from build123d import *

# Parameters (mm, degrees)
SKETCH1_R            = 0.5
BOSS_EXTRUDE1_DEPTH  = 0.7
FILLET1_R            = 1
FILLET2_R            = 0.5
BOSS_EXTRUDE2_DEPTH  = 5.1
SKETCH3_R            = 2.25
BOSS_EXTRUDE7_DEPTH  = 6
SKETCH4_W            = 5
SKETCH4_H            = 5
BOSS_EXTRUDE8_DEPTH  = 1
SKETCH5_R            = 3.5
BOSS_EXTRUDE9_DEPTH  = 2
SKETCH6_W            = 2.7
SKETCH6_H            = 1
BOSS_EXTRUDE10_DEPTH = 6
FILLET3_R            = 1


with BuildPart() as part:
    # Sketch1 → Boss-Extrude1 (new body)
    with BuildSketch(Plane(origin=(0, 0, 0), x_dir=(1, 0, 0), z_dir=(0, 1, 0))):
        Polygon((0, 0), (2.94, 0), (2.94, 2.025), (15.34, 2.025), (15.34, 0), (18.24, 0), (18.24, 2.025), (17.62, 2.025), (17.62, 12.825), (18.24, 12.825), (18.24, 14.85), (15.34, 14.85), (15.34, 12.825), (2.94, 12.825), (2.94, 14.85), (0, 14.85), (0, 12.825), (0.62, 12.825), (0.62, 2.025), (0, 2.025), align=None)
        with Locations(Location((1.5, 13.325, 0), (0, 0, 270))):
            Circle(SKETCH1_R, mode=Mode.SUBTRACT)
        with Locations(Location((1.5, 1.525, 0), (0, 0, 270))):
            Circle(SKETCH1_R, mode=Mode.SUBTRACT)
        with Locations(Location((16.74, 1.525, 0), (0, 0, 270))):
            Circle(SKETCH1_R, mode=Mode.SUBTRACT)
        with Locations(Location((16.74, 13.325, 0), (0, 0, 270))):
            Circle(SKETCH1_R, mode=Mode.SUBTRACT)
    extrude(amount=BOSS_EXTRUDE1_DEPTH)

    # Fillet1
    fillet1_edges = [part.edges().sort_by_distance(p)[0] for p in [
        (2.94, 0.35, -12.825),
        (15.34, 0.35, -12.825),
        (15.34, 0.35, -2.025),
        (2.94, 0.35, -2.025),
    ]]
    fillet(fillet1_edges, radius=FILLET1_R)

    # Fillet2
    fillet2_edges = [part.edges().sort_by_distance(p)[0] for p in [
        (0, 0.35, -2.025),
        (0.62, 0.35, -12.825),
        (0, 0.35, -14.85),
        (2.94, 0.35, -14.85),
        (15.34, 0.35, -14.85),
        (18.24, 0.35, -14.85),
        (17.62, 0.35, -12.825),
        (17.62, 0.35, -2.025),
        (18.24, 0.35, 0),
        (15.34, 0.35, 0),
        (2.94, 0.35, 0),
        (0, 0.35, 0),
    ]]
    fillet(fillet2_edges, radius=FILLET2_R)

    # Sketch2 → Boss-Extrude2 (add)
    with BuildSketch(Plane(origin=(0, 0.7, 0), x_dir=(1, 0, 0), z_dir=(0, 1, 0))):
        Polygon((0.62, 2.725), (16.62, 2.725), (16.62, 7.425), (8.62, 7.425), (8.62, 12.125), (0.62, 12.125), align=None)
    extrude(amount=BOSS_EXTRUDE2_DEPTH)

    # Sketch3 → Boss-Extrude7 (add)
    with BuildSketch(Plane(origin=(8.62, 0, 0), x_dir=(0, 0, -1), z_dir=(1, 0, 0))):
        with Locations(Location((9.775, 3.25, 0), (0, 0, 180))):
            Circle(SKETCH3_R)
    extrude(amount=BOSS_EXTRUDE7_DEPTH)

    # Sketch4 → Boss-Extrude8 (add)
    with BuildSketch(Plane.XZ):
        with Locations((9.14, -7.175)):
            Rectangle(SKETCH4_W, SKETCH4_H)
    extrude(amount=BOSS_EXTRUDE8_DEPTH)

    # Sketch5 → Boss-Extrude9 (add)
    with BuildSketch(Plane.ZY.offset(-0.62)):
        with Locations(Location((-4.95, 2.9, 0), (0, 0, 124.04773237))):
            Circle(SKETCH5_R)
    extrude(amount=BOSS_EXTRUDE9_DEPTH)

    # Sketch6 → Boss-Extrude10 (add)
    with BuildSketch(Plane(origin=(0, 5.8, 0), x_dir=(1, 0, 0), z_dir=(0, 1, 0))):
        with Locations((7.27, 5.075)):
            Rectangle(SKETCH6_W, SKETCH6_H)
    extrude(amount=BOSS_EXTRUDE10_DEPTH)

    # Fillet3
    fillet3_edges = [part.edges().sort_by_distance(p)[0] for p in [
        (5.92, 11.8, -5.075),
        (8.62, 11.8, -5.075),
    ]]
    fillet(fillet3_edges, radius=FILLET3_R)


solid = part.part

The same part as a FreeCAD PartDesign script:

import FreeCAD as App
import Part
import Sketcher

V = App.Vector


def edges_at(feature, points):
    """Names of the edges that pass closest to the given points."""
    edges = feature.Shape.Edges
    near = lambda p: min(range(len(edges)), key=lambda i: edges[i].distToShape(Part.Vertex(*p))[0])
    return sorted({f"Edge{near(p) + 1}" for p in points})

doc = App.newDocument("Part")
params = doc.addObject("Spreadsheet::Sheet", "Params")
for row, (alias, value) in enumerate([
    ("sketch1_diameter", "1 mm"),
    ("sketch1_width", "12.4 mm"),
    ("sketch1_width2", "2.9 mm"),
    ("sketch1_height", "10.8 mm"),
    ("sketch1_width3", "2.94 mm"),
    ("pad1_length", "0.7 mm"),
    ("fillet_radius", "1 mm"),
    ("fillet2_radius", "0.5 mm"),
    ("sketch2_width", "16 mm"),
    ("sketch2_height", "4.7 mm"),
    ("pad2_length", "5.1 mm"),
    ("sketch3_diameter", "4.5 mm"),
    ("pad3_length", "6 mm"),
    ("sketch4_width", "5 mm"),
    ("pad4_length", "1 mm"),
    ("sketch5_diameter", "7 mm"),
    ("pad5_length", "2 mm"),
    ("sketch6_height", "1 mm"),
    ("sketch6_width", "2.7 mm"),
    ("pad6_length", "6 mm"),
    ("fillet3_radius", "1 mm"),
], start=1):
    params.set(f"A{row}", alias)
    params.set(f"B{row}", "=" + value)
    params.setAlias(f"B{row}", alias)

body = doc.addObject("PartDesign::Body", "Body")

# Sketch on XZ plane
sketch1 = body.newObject("Sketcher::SketchObject", "Sketch")
sketch1.AttachmentSupport = (doc.getObject("XZ_Plane"), [""])
sketch1.MapMode = "FlatFace"
sketch1.addGeometry([
    Part.LineSegment(V(0, 0, 0), V(2.9, 0, 0)),  # 0
    Part.LineSegment(V(2.9, 0, 0), V(2.9, -2, 0)),  # 1
    Part.LineSegment(V(2.9, -2, 0), V(15.3, -2, 0)),  # 2
    Part.LineSegment(V(15.3, -2, 0), V(15.3, 0, 0)),  # 3
    Part.LineSegment(V(15.3, 0, 0), V(18.2, 0, 0)),  # 4
    Part.LineSegment(V(18.2, 0, 0), V(18.2, -2, 0)),  # 5
    Part.LineSegment(V(18.2, -2, 0), V(17.6, -2, 0)),  # 6
    Part.LineSegment(V(17.6, -2, 0), V(17.6, -12.8, 0)),  # 7
    Part.LineSegment(V(17.6, -12.8, 0), V(18.2, -12.8, 0)),  # 8
    Part.LineSegment(V(18.2, -12.8, 0), V(18.2, -14.8, 0)),  # 9
    Part.LineSegment(V(18.2, -14.8, 0), V(15.3, -14.8, 0)),  # 10
    Part.LineSegment(V(15.3, -14.8, 0), V(15.3, -12.8, 0)),  # 11
    Part.LineSegment(V(15.3, -12.8, 0), V(2.9, -12.8, 0)),  # 12
    Part.LineSegment(V(2.9, -12.8, 0), V(2.9, -14.8, 0)),  # 13
    Part.LineSegment(V(2.9, -14.8, 0), V(0, -14.8, 0)),  # 14
    Part.LineSegment(V(0, -14.8, 0), V(0, -12.8, 0)),  # 15
    Part.LineSegment(V(0, -12.8, 0), V(0.6, -12.8, 0)),  # 16
    Part.LineSegment(V(0.6, -12.8, 0), V(0.6, -2, 0)),  # 17
    Part.LineSegment(V(0.6, -2, 0), V(0, -2, 0)),  # 18
    Part.LineSegment(V(0, -2, 0), V(0, 0, 0)),  # 19
    Part.Circle(V(1.5, -1.5, 0), V(0, 0, 1), 0.5),  # 20
    Part.Circle(V(16.7, -1.5, 0), V(0, 0, 1), 0.5),  # 21
    Part.Circle(V(1.5, -13.3, 0), V(0, 0, 1), 0.5),  # 22
    Part.Circle(V(16.7, -13.3, 0), V(0, 0, 1), 0.5),  # 23
], False)
sketch1.addConstraint([
    Sketcher.Constraint("Coincident", 0, 2, 1, 1),
    Sketcher.Constraint("Coincident", 1, 2, 2, 1),
    Sketcher.Constraint("Coincident", 2, 2, 3, 1),
    Sketcher.Constraint("Coincident", 3, 2, 4, 1),
    Sketcher.Constraint("Coincident", 4, 2, 5, 1),
    Sketcher.Constraint("Coincident", 5, 2, 6, 1),
    Sketcher.Constraint("Coincident", 6, 2, 7, 1),
    Sketcher.Constraint("Coincident", 7, 2, 8, 1),
    Sketcher.Constraint("Coincident", 8, 2, 9, 1),
    Sketcher.Constraint("Coincident", 9, 2, 10, 1),
    Sketcher.Constraint("Coincident", 10, 2, 11, 1),
    Sketcher.Constraint("Coincident", 11, 2, 12, 1),
    Sketcher.Constraint("Coincident", 12, 2, 13, 1),
    Sketcher.Constraint("Coincident", 13, 2, 14, 1),
    Sketcher.Constraint("Coincident", 14, 2, 15, 1),
    Sketcher.Constraint("Coincident", 15, 2, 16, 1),
    Sketcher.Constraint("Coincident", 16, 2, 17, 1),
    Sketcher.Constraint("Coincident", 17, 2, 18, 1),
    Sketcher.Constraint("Coincident", 18, 2, 19, 1),
    Sketcher.Constraint("Coincident", 19, 2, 0, 1),
    Sketcher.Constraint("Horizontal", 0),
    Sketcher.Constraint("Vertical", 1),
    Sketcher.Constraint("Horizontal", 2),
    Sketcher.Constraint("Vertical", 3),
    Sketcher.Constraint("Horizontal", 4),
    Sketcher.Constraint("Vertical", 5),
    Sketcher.Constraint("Horizontal", 6),
    Sketcher.Constraint("Vertical", 7),
    Sketcher.Constraint("Horizontal", 8),
    Sketcher.Constraint("Vertical", 9),
    Sketcher.Constraint("Horizontal", 10),
    Sketcher.Constraint("Vertical", 11),
    Sketcher.Constraint("Horizontal", 12),
    Sketcher.Constraint("Vertical", 13),
    Sketcher.Constraint("Horizontal", 14),
    Sketcher.Constraint("Vertical", 15),
    Sketcher.Constraint("Horizontal", 16),
    Sketcher.Constraint("Vertical", 17),
    Sketcher.Constraint("Horizontal", 18),
    Sketcher.Constraint("Vertical", 19),
    Sketcher.Constraint("Coincident", 19, 2, -1, 1),
    Sketcher.Constraint("Equal", 20, 21),
    Sketcher.Constraint("Equal", 21, 22),
    Sketcher.Constraint("Equal", 22, 23),
    Sketcher.Constraint("PointOnObject", 3, 2, -1),
    Sketcher.Constraint("PointOnObject", 14, 2, -2),
    Sketcher.Constraint("Horizontal", 20, 3, 21, 3),
    Sketcher.Constraint("Horizontal", 22, 3, 23, 3),
    Sketcher.Constraint("Horizontal", 2, 2, 5, 2),
    Sketcher.Constraint("Horizontal", 8, 2, 11, 2),
    Sketcher.Constraint("Horizontal", 10, 2, 13, 2),
    Sketcher.Constraint("Horizontal", 12, 2, 15, 2),
    Sketcher.Constraint("Horizontal", 6, 2, 17, 2),
    Sketcher.Constraint("Vertical", 20, 3, 22, 3),
    Sketcher.Constraint("Vertical", 21, 3, 23, 3),
    Sketcher.Constraint("Vertical", 5, 2, 8, 2),
    Sketcher.Constraint("Vertical", 3, 2, 10, 2),
    Sketcher.Constraint("Vertical", 1, 2, 12, 2),
    Sketcher.Constraint("Equal", 8, 16),
    Sketcher.Constraint("Equal", 5, 9),
    Sketcher.Constraint("Diameter", 20, 1.0),
    Sketcher.Constraint("DistanceX", 2, 1, 2, 2, 12.4),
    Sketcher.Constraint("DistanceX", 4, 1, 4, 2, 2.9),
    Sketcher.Constraint("DistanceY", 7, 2, 7, 1, 10.8),
    Sketcher.Constraint("DistanceX", 0, 1, 0, 2, 2.94),
    Sketcher.Constraint("DistanceX", 6, 2, 6, 1, 0.62),
    Sketcher.Constraint("DistanceX", -1, 1, 20, 3, 1.5),
    Sketcher.Constraint("DistanceY", 22, 3, 20, 3, 11.8),
    Sketcher.Constraint("DistanceX", 0, 2, 21, 3, 13.8),
    Sketcher.Constraint("DistanceY", 1, 2, 20, 3, 0.5),
    Sketcher.Constraint("DistanceY", 1, 2, 1, 1, 2.025),
])
sketch1.setExpression("Constraints[60]", "Params.sketch1_diameter")
sketch1.setExpression("Constraints[61]", "Params.sketch1_width")
sketch1.setExpression("Constraints[62]", "Params.sketch1_width2")
sketch1.setExpression("Constraints[63]", "Params.sketch1_height")
sketch1.setExpression("Constraints[64]", "Params.sketch1_width3")
pad1 = body.newObject("PartDesign::Pad", "Pad")
pad1.Profile = sketch1
pad1.setExpression("Length", "Params.pad1_length")
pad1.Reversed = True
doc.recompute()

fillet = body.newObject("PartDesign::Fillet", "Fillet")
fillet.Base = (pad1, edges_at(pad1, [
    (2.94, 0.35, -12.825),
    (15.34, 0.35, -12.825),
    (15.34, 0.35, -2.025),
    (2.94, 0.35, -2.025),
]))
fillet.setExpression("Radius", "Params.fillet_radius")
doc.recompute()

fillet2 = body.newObject("PartDesign::Fillet", "Fillet001")
fillet2.Base = (fillet, edges_at(fillet, [
    (0, 0.35, -2.025),
    (0.62, 0.35, -12.825),
    (0, 0.35, -14.85),
    (2.94, 0.35, -14.85),
    (15.34, 0.35, -14.85),
    (18.24, 0.35, -14.85),
    (17.62, 0.35, -12.825),
    (17.62, 0.35, -2.025),
    (18.24, 0.35, 0),
    (15.34, 0.35, 0),
    (2.94, 0.35, 0),
    (0, 0.35, 0),
]))
fillet2.setExpression("Radius", "Params.fillet2_radius")

# Sketch on XZ plane
sketch2 = body.newObject("Sketcher::SketchObject", "Sketch001")
sketch2.AttachmentSupport = (doc.getObject("XZ_Plane"), [""])
sketch2.MapMode = "FlatFace"
sketch2.AttachmentOffset = App.Placement(V(0, 0, -0.7), App.Rotation())
sketch2.addGeometry([
    Part.LineSegment(V(0.6, -2.7, 0), V(16.6, -2.7, 0)),  # 0
    Part.LineSegment(V(16.6, -2.7, 0), V(16.6, -7.4, 0)),  # 1
    Part.LineSegment(V(16.6, -7.4, 0), V(8.6, -7.4, 0)),  # 2
    Part.LineSegment(V(8.6, -7.4, 0), V(8.6, -12.1, 0)),  # 3
    Part.LineSegment(V(8.6, -12.1, 0), V(0.6, -12.1, 0)),  # 4
    Part.LineSegment(V(0.6, -12.1, 0), V(0.6, -2.7, 0)),  # 5
], False)
sketch2.addConstraint([
    Sketcher.Constraint("Coincident", 0, 2, 1, 1),
    Sketcher.Constraint("Coincident", 1, 2, 2, 1),
    Sketcher.Constraint("Coincident", 2, 2, 3, 1),
    Sketcher.Constraint("Coincident", 3, 2, 4, 1),
    Sketcher.Constraint("Coincident", 4, 2, 5, 1),
    Sketcher.Constraint("Coincident", 5, 2, 0, 1),
    Sketcher.Constraint("Horizontal", 0),
    Sketcher.Constraint("Vertical", 1),
    Sketcher.Constraint("Horizontal", 2),
    Sketcher.Constraint("Vertical", 3),
    Sketcher.Constraint("Horizontal", 4),
    Sketcher.Constraint("Vertical", 5),
    Sketcher.Constraint("Equal", 2, 4),
    Sketcher.Constraint("Equal", 1, 3),
    Sketcher.Constraint("DistanceX", 0, 1, 0, 2, 16.0),
    Sketcher.Constraint("DistanceY", 1, 2, 1, 1, 4.7),
    Sketcher.Constraint("DistanceX", -1, 1, 0, 2, 16.62),
    Sketcher.Constraint("DistanceY", 0, 2, -1, 1, 2.725),
])
sketch2.setExpression("Constraints[14]", "Params.sketch2_width")
sketch2.setExpression("Constraints[15]", "Params.sketch2_height")
pad2 = body.newObject("PartDesign::Pad", "Pad001")
pad2.Profile = sketch2
pad2.setExpression("Length", "Params.pad2_length")
pad2.Reversed = True

# Sketch on YZ plane
sketch3 = body.newObject("Sketcher::SketchObject", "Sketch002")
sketch3.AttachmentSupport = (doc.getObject("YZ_Plane"), [""])
sketch3.MapMode = "FlatFace"
sketch3.AttachmentOffset = App.Placement(V(0, 0, 8.62), App.Rotation())
sketch3.addGeometry(Part.Circle(V(3.2, -9.8, 0), V(0, 0, 1), 2.2), False)
sketch3.addConstraint([
    Sketcher.Constraint("Diameter", 0, 4.5),
    Sketcher.Constraint("DistanceX", -1, 1, 0, 3, 3.25),
    Sketcher.Constraint("DistanceY", 0, 3, -1, 1, 9.775),
])
sketch3.setExpression("Constraints[0]", "Params.sketch3_diameter")
pad3 = body.newObject("PartDesign::Pad", "Pad002")
pad3.Profile = sketch3
pad3.setExpression("Length", "Params.pad3_length")

# Sketch on XZ plane
sketch4 = body.newObject("Sketcher::SketchObject", "Sketch003")
sketch4.AttachmentSupport = (doc.getObject("XZ_Plane"), [""])
sketch4.MapMode = "FlatFace"
sketch4.addGeometry([
    Part.LineSegment(V(7, -5, 0), V(7, -10, 0)),
    Part.LineSegment(V(7, -10, 0), V(12, -10, 0)),
    Part.LineSegment(V(12, -10, 0), V(12, -5, 0)),
    Part.LineSegment(V(12, -5, 0), V(7, -5, 0)),
], False)
sketch4.addConstraint([
    Sketcher.Constraint("Coincident", 0, 2, 1, 1),
    Sketcher.Constraint("Coincident", 1, 2, 2, 1),
    Sketcher.Constraint("Coincident", 2, 2, 3, 1),
    Sketcher.Constraint("Coincident", 3, 2, 0, 1),
    Sketcher.Constraint("Vertical", 0),
    Sketcher.Constraint("Horizontal", 1),
    Sketcher.Constraint("Vertical", 2),
    Sketcher.Constraint("Horizontal", 3),
    Sketcher.Constraint("Equal", 3, 0),
    Sketcher.Constraint("DistanceX", 1, 1, 1, 2, 5.0),
    Sketcher.Constraint("DistanceX", -1, 1, 0, 2, 6.64),
    Sketcher.Constraint("DistanceY", 0, 2, -1, 1, 9.675),
])
sketch4.setExpression("Constraints[9]", "Params.sketch4_width")
pad4 = body.newObject("PartDesign::Pad", "Pad003")
pad4.Profile = sketch4
pad4.setExpression("Length", "Params.pad4_length")

# Sketch on YZ plane
sketch5 = body.newObject("Sketcher::SketchObject", "Sketch004")
sketch5.AttachmentSupport = (doc.getObject("YZ_Plane"), [""])
sketch5.MapMode = "FlatFace"
sketch5.AttachmentOffset = App.Placement(V(0, 0, 0.62), App.Rotation())
sketch5.addGeometry(Part.Circle(V(2.9, -5, 0), V(0, 0, 1), 3.5), False)
sketch5.addConstraint([
    Sketcher.Constraint("Diameter", 0, 7.0),
    Sketcher.Constraint("DistanceX", -1, 1, 0, 3, 2.9),
    Sketcher.Constraint("DistanceY", 0, 3, -1, 1, 4.95),
])
sketch5.setExpression("Constraints[0]", "Params.sketch5_diameter")
pad5 = body.newObject("PartDesign::Pad", "Pad004")
pad5.Profile = sketch5
pad5.setExpression("Length", "Params.pad5_length")
pad5.Reversed = True

# Sketch on XZ plane
sketch6 = body.newObject("Sketcher::SketchObject", "Sketch005")
sketch6.AttachmentSupport = (doc.getObject("XZ_Plane"), [""])
sketch6.MapMode = "FlatFace"
sketch6.AttachmentOffset = App.Placement(V(0, 0, -5.8), App.Rotation())
sketch6.addGeometry([
    Part.LineSegment(V(5.9, -5.6, 0), V(5.9, -4.6, 0)),
    Part.LineSegment(V(5.9, -4.6, 0), V(8.6, -4.6, 0)),
    Part.LineSegment(V(8.6, -4.6, 0), V(8.6, -5.6, 0)),
    Part.LineSegment(V(8.6, -5.6, 0), V(5.9, -5.6, 0)),
], False)
sketch6.addConstraint([
    Sketcher.Constraint("Coincident", 0, 2, 1, 1),
    Sketcher.Constraint("Coincident", 1, 2, 2, 1),
    Sketcher.Constraint("Coincident", 2, 2, 3, 1),
    Sketcher.Constraint("Coincident", 3, 2, 0, 1),
    Sketcher.Constraint("Vertical", 0),
    Sketcher.Constraint("Horizontal", 1),
    Sketcher.Constraint("Vertical", 2),
    Sketcher.Constraint("Horizontal", 3),
    Sketcher.Constraint("DistanceY", 0, 1, 0, 2, 1.0),
    Sketcher.Constraint("DistanceX", 1, 1, 1, 2, 2.7),
    Sketcher.Constraint("DistanceX", -1, 1, 0, 2, 5.92),
    Sketcher.Constraint("DistanceY", 0, 2, -1, 1, 4.575),
])
sketch6.setExpression("Constraints[8]", "Params.sketch6_height")
sketch6.setExpression("Constraints[9]", "Params.sketch6_width")
pad6 = body.newObject("PartDesign::Pad", "Pad005")
pad6.Profile = sketch6
pad6.setExpression("Length", "Params.pad6_length")
pad6.Reversed = True
doc.recompute()

fillet3 = body.newObject("PartDesign::Fillet", "Fillet002")
fillet3.Base = (pad6, edges_at(pad6, [(5.92, 11.8, -5.075), (8.62, 11.8, -5.075)]))
fillet3.setExpression("Radius", "Params.fillet3_radius")

doc.recompute()
